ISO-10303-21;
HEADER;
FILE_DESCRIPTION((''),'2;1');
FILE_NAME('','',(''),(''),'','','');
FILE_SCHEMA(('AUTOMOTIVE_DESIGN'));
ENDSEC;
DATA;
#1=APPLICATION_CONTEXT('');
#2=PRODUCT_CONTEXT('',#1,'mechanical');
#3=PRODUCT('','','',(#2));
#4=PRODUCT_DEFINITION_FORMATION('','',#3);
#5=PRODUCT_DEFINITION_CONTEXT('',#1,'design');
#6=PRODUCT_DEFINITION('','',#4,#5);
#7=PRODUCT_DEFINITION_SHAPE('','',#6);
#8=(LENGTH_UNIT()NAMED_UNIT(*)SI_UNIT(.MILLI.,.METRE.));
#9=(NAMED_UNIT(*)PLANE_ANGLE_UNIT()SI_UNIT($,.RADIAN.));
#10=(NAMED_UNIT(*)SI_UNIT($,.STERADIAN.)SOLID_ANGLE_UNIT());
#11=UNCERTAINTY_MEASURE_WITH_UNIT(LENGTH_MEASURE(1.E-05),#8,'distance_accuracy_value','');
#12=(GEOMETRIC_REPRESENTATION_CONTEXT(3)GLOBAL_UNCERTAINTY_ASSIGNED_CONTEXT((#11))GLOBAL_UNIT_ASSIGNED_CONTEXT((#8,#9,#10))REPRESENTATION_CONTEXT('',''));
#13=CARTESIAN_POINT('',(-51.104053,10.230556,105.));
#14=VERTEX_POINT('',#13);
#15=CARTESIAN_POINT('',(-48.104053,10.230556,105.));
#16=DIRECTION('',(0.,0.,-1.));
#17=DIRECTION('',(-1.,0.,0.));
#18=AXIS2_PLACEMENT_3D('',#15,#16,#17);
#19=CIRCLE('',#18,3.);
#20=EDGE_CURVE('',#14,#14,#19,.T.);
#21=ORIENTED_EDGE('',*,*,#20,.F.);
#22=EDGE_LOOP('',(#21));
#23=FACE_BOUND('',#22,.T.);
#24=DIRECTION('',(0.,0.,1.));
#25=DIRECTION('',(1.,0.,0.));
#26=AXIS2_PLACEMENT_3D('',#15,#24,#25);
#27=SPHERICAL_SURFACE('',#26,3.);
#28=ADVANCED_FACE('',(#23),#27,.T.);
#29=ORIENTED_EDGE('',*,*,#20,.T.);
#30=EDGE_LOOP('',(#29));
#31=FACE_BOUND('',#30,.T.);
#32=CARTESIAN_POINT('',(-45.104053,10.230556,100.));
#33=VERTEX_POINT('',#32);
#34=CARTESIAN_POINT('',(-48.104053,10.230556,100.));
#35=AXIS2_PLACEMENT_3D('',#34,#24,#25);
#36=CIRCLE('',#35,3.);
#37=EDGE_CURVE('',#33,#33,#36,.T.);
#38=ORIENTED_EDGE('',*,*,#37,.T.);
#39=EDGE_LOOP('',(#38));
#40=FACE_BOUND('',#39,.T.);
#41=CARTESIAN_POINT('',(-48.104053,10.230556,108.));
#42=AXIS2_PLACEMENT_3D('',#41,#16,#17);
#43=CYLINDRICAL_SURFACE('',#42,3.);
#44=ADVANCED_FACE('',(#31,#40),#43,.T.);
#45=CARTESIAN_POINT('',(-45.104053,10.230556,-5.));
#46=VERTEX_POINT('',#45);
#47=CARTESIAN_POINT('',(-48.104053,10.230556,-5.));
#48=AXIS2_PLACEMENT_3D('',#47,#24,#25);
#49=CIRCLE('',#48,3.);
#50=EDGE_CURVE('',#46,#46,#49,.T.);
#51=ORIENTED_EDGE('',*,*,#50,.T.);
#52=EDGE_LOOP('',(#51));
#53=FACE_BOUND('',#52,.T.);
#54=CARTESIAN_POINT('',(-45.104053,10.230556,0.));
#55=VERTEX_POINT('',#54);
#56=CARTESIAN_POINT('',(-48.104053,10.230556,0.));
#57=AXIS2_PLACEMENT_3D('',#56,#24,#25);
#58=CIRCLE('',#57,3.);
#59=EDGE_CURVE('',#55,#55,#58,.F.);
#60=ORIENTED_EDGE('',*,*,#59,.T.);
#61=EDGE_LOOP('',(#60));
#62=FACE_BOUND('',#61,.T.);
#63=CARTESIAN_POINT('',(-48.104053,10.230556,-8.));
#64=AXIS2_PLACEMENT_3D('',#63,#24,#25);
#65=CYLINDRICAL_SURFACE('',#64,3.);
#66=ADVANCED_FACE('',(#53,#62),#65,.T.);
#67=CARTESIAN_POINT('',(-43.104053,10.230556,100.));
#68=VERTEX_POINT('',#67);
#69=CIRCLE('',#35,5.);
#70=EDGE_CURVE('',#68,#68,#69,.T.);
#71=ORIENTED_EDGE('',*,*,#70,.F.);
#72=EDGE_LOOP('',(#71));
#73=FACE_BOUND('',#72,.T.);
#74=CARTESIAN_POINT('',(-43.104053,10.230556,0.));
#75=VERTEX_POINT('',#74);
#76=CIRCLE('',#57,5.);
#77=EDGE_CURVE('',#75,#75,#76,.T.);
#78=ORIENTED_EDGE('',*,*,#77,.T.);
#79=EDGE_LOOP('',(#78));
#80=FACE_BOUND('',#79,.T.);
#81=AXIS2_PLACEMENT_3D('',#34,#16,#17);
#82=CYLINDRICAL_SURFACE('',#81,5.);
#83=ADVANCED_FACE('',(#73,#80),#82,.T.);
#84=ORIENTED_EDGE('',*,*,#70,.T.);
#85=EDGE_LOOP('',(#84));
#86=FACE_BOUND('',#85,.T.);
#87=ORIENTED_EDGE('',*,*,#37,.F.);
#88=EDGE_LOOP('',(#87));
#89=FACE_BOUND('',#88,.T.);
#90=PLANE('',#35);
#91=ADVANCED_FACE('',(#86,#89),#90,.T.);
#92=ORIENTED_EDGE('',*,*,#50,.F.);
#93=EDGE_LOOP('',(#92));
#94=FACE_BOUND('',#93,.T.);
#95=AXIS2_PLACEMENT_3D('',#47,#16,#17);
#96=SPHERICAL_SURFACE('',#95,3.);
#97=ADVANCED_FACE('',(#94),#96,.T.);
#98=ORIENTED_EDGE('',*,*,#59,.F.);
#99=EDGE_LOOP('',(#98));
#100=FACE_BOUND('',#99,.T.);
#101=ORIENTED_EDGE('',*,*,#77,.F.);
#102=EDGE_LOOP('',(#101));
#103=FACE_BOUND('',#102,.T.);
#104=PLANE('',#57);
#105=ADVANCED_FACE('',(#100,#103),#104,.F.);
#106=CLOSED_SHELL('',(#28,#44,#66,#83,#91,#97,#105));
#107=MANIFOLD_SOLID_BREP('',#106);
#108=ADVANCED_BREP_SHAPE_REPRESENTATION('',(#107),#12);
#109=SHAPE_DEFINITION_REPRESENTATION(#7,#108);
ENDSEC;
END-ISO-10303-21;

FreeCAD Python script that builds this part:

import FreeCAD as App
import Part
import Sketcher
from FreeCAD import Vector


def edges_at(feature, points):
    """Names of the edges that pass closest to the given points."""
    edges = feature.Shape.Edges
    near = lambda p: min(range(len(edges)), key=lambda i: edges[i].distToShape(Part.Vertex(*p))[0])
    return sorted({f"Edge{near(p) + 1}" for p in points})

doc = App.newDocument("Part")
params = doc.addObject("Spreadsheet::Sheet", "Params")
for row, (alias, value) in enumerate([
    ("sketch1_diameter", "10 mm"),
    ("pad1_length", "100 mm"),
    ("sketch2_diameter", "6 mm"),
    ("pad2_length", "8 mm"),
    ("sketch3_diameter", "6 mm"),
    ("pad3_length", "8 mm"),
    ("fillet_radius", "3 mm"),
], start=1):
    params.set(f"A{row}", alias)
    params.set(f"B{row}", "=" + value)
    params.setAlias(f"B{row}", alias)

body = doc.addObject("PartDesign::Body", "Body")

# Sketch on XY plane
sketch1 = doc.addObject("Sketcher::SketchObject", "Sketch")
body.addObject(sketch1)
sketch1.AttachmentSupport = (doc.XY_Plane, [""])
sketch1.MapMode = "FlatFace"
sketch1.addGeometry(Part.Circle(Vector(-48.104053, 10.230556, 0), Vector(0, 0, 1), 5), False)
sketch1.addConstraint([
    Sketcher.Constraint("Diameter", 0, 10.0),
    Sketcher.Constraint("DistanceX", 0, 3, -1, 1, 48.104053),
    Sketcher.Constraint("DistanceY", -1, 1, 0, 3, 10.230556),
])
sketch1.setExpression("Constraints[0]", "Params.sketch1_diameter")
pad1 = doc.addObject("PartDesign::Pad", "Pad")
body.addObject(pad1)
pad1.Profile = sketch1
pad1.setExpression("Length", "Params.pad1_length")

# Sketch on XY plane
sketch2 = doc.addObject("Sketcher::SketchObject", "Sketch001")
body.addObject(sketch2)
sketch2.AttachmentSupport = (doc.XY_Plane, [""])
sketch2.MapMode = "FlatFace"
sketch2.AttachmentOffset = App.Placement(Vector(0, 0, 100), App.Rotation())
sketch2.addGeometry(Part.Circle(Vector(-48.104053, 10.230556, 0), Vector(0, 0, 1), 3), False)
sketch2.addConstraint([
    Sketcher.Constraint("Diameter", 0, 6.0),
    Sketcher.Constraint("DistanceX", 0, 3, -1, 1, 48.104053),
    Sketcher.Constraint("DistanceY", -1, 1, 0, 3, 10.230556),
])
sketch2.setExpression("Constraints[0]", "Params.sketch2_diameter")
pad2 = doc.addObject("PartDesign::Pad", "Pad001")
body.addObject(pad2)
pad2.Profile = sketch2
pad2.setExpression("Length", "Params.pad2_length")

# Sketch on XY plane
sketch3 = doc.addObject("Sketcher::SketchObject", "Sketch002")
body.addObject(sketch3)
sketch3.AttachmentSupport = (doc.XY_Plane, [""])
sketch3.MapMode = "FlatFace"
sketch3.addGeometry(Part.Circle(Vector(-48.104053, 10.230556, 0), Vector(0, 0, 1), 3), False)
sketch3.addConstraint([
    Sketcher.Constraint("Diameter", 0, 6.0),
    Sketcher.Constraint("DistanceX", 0, 3, -1, 1, 48.104053),
    Sketcher.Constraint("DistanceY", -1, 1, 0, 3, 10.230556),
])
sketch3.setExpression("Constraints[0]", "Params.sketch3_diameter")
pad3 = doc.addObject("PartDesign::Pad", "Pad002")
body.addObject(pad3)
pad3.Profile = sketch3
pad3.setExpression("Length", "Params.pad3_length")
pad3.Reversed = True
doc.recompute()

fillet = doc.addObject("PartDesign::Fillet", "Fillet")
body.addObject(fillet)
fillet.Base = (pad3, edges_at(pad3, [(-45.104, 10.231, -8), (-51.104, 10.231, 108)]))
fillet.setExpression("Radius", "Params.fillet_radius")

doc.recompute()
